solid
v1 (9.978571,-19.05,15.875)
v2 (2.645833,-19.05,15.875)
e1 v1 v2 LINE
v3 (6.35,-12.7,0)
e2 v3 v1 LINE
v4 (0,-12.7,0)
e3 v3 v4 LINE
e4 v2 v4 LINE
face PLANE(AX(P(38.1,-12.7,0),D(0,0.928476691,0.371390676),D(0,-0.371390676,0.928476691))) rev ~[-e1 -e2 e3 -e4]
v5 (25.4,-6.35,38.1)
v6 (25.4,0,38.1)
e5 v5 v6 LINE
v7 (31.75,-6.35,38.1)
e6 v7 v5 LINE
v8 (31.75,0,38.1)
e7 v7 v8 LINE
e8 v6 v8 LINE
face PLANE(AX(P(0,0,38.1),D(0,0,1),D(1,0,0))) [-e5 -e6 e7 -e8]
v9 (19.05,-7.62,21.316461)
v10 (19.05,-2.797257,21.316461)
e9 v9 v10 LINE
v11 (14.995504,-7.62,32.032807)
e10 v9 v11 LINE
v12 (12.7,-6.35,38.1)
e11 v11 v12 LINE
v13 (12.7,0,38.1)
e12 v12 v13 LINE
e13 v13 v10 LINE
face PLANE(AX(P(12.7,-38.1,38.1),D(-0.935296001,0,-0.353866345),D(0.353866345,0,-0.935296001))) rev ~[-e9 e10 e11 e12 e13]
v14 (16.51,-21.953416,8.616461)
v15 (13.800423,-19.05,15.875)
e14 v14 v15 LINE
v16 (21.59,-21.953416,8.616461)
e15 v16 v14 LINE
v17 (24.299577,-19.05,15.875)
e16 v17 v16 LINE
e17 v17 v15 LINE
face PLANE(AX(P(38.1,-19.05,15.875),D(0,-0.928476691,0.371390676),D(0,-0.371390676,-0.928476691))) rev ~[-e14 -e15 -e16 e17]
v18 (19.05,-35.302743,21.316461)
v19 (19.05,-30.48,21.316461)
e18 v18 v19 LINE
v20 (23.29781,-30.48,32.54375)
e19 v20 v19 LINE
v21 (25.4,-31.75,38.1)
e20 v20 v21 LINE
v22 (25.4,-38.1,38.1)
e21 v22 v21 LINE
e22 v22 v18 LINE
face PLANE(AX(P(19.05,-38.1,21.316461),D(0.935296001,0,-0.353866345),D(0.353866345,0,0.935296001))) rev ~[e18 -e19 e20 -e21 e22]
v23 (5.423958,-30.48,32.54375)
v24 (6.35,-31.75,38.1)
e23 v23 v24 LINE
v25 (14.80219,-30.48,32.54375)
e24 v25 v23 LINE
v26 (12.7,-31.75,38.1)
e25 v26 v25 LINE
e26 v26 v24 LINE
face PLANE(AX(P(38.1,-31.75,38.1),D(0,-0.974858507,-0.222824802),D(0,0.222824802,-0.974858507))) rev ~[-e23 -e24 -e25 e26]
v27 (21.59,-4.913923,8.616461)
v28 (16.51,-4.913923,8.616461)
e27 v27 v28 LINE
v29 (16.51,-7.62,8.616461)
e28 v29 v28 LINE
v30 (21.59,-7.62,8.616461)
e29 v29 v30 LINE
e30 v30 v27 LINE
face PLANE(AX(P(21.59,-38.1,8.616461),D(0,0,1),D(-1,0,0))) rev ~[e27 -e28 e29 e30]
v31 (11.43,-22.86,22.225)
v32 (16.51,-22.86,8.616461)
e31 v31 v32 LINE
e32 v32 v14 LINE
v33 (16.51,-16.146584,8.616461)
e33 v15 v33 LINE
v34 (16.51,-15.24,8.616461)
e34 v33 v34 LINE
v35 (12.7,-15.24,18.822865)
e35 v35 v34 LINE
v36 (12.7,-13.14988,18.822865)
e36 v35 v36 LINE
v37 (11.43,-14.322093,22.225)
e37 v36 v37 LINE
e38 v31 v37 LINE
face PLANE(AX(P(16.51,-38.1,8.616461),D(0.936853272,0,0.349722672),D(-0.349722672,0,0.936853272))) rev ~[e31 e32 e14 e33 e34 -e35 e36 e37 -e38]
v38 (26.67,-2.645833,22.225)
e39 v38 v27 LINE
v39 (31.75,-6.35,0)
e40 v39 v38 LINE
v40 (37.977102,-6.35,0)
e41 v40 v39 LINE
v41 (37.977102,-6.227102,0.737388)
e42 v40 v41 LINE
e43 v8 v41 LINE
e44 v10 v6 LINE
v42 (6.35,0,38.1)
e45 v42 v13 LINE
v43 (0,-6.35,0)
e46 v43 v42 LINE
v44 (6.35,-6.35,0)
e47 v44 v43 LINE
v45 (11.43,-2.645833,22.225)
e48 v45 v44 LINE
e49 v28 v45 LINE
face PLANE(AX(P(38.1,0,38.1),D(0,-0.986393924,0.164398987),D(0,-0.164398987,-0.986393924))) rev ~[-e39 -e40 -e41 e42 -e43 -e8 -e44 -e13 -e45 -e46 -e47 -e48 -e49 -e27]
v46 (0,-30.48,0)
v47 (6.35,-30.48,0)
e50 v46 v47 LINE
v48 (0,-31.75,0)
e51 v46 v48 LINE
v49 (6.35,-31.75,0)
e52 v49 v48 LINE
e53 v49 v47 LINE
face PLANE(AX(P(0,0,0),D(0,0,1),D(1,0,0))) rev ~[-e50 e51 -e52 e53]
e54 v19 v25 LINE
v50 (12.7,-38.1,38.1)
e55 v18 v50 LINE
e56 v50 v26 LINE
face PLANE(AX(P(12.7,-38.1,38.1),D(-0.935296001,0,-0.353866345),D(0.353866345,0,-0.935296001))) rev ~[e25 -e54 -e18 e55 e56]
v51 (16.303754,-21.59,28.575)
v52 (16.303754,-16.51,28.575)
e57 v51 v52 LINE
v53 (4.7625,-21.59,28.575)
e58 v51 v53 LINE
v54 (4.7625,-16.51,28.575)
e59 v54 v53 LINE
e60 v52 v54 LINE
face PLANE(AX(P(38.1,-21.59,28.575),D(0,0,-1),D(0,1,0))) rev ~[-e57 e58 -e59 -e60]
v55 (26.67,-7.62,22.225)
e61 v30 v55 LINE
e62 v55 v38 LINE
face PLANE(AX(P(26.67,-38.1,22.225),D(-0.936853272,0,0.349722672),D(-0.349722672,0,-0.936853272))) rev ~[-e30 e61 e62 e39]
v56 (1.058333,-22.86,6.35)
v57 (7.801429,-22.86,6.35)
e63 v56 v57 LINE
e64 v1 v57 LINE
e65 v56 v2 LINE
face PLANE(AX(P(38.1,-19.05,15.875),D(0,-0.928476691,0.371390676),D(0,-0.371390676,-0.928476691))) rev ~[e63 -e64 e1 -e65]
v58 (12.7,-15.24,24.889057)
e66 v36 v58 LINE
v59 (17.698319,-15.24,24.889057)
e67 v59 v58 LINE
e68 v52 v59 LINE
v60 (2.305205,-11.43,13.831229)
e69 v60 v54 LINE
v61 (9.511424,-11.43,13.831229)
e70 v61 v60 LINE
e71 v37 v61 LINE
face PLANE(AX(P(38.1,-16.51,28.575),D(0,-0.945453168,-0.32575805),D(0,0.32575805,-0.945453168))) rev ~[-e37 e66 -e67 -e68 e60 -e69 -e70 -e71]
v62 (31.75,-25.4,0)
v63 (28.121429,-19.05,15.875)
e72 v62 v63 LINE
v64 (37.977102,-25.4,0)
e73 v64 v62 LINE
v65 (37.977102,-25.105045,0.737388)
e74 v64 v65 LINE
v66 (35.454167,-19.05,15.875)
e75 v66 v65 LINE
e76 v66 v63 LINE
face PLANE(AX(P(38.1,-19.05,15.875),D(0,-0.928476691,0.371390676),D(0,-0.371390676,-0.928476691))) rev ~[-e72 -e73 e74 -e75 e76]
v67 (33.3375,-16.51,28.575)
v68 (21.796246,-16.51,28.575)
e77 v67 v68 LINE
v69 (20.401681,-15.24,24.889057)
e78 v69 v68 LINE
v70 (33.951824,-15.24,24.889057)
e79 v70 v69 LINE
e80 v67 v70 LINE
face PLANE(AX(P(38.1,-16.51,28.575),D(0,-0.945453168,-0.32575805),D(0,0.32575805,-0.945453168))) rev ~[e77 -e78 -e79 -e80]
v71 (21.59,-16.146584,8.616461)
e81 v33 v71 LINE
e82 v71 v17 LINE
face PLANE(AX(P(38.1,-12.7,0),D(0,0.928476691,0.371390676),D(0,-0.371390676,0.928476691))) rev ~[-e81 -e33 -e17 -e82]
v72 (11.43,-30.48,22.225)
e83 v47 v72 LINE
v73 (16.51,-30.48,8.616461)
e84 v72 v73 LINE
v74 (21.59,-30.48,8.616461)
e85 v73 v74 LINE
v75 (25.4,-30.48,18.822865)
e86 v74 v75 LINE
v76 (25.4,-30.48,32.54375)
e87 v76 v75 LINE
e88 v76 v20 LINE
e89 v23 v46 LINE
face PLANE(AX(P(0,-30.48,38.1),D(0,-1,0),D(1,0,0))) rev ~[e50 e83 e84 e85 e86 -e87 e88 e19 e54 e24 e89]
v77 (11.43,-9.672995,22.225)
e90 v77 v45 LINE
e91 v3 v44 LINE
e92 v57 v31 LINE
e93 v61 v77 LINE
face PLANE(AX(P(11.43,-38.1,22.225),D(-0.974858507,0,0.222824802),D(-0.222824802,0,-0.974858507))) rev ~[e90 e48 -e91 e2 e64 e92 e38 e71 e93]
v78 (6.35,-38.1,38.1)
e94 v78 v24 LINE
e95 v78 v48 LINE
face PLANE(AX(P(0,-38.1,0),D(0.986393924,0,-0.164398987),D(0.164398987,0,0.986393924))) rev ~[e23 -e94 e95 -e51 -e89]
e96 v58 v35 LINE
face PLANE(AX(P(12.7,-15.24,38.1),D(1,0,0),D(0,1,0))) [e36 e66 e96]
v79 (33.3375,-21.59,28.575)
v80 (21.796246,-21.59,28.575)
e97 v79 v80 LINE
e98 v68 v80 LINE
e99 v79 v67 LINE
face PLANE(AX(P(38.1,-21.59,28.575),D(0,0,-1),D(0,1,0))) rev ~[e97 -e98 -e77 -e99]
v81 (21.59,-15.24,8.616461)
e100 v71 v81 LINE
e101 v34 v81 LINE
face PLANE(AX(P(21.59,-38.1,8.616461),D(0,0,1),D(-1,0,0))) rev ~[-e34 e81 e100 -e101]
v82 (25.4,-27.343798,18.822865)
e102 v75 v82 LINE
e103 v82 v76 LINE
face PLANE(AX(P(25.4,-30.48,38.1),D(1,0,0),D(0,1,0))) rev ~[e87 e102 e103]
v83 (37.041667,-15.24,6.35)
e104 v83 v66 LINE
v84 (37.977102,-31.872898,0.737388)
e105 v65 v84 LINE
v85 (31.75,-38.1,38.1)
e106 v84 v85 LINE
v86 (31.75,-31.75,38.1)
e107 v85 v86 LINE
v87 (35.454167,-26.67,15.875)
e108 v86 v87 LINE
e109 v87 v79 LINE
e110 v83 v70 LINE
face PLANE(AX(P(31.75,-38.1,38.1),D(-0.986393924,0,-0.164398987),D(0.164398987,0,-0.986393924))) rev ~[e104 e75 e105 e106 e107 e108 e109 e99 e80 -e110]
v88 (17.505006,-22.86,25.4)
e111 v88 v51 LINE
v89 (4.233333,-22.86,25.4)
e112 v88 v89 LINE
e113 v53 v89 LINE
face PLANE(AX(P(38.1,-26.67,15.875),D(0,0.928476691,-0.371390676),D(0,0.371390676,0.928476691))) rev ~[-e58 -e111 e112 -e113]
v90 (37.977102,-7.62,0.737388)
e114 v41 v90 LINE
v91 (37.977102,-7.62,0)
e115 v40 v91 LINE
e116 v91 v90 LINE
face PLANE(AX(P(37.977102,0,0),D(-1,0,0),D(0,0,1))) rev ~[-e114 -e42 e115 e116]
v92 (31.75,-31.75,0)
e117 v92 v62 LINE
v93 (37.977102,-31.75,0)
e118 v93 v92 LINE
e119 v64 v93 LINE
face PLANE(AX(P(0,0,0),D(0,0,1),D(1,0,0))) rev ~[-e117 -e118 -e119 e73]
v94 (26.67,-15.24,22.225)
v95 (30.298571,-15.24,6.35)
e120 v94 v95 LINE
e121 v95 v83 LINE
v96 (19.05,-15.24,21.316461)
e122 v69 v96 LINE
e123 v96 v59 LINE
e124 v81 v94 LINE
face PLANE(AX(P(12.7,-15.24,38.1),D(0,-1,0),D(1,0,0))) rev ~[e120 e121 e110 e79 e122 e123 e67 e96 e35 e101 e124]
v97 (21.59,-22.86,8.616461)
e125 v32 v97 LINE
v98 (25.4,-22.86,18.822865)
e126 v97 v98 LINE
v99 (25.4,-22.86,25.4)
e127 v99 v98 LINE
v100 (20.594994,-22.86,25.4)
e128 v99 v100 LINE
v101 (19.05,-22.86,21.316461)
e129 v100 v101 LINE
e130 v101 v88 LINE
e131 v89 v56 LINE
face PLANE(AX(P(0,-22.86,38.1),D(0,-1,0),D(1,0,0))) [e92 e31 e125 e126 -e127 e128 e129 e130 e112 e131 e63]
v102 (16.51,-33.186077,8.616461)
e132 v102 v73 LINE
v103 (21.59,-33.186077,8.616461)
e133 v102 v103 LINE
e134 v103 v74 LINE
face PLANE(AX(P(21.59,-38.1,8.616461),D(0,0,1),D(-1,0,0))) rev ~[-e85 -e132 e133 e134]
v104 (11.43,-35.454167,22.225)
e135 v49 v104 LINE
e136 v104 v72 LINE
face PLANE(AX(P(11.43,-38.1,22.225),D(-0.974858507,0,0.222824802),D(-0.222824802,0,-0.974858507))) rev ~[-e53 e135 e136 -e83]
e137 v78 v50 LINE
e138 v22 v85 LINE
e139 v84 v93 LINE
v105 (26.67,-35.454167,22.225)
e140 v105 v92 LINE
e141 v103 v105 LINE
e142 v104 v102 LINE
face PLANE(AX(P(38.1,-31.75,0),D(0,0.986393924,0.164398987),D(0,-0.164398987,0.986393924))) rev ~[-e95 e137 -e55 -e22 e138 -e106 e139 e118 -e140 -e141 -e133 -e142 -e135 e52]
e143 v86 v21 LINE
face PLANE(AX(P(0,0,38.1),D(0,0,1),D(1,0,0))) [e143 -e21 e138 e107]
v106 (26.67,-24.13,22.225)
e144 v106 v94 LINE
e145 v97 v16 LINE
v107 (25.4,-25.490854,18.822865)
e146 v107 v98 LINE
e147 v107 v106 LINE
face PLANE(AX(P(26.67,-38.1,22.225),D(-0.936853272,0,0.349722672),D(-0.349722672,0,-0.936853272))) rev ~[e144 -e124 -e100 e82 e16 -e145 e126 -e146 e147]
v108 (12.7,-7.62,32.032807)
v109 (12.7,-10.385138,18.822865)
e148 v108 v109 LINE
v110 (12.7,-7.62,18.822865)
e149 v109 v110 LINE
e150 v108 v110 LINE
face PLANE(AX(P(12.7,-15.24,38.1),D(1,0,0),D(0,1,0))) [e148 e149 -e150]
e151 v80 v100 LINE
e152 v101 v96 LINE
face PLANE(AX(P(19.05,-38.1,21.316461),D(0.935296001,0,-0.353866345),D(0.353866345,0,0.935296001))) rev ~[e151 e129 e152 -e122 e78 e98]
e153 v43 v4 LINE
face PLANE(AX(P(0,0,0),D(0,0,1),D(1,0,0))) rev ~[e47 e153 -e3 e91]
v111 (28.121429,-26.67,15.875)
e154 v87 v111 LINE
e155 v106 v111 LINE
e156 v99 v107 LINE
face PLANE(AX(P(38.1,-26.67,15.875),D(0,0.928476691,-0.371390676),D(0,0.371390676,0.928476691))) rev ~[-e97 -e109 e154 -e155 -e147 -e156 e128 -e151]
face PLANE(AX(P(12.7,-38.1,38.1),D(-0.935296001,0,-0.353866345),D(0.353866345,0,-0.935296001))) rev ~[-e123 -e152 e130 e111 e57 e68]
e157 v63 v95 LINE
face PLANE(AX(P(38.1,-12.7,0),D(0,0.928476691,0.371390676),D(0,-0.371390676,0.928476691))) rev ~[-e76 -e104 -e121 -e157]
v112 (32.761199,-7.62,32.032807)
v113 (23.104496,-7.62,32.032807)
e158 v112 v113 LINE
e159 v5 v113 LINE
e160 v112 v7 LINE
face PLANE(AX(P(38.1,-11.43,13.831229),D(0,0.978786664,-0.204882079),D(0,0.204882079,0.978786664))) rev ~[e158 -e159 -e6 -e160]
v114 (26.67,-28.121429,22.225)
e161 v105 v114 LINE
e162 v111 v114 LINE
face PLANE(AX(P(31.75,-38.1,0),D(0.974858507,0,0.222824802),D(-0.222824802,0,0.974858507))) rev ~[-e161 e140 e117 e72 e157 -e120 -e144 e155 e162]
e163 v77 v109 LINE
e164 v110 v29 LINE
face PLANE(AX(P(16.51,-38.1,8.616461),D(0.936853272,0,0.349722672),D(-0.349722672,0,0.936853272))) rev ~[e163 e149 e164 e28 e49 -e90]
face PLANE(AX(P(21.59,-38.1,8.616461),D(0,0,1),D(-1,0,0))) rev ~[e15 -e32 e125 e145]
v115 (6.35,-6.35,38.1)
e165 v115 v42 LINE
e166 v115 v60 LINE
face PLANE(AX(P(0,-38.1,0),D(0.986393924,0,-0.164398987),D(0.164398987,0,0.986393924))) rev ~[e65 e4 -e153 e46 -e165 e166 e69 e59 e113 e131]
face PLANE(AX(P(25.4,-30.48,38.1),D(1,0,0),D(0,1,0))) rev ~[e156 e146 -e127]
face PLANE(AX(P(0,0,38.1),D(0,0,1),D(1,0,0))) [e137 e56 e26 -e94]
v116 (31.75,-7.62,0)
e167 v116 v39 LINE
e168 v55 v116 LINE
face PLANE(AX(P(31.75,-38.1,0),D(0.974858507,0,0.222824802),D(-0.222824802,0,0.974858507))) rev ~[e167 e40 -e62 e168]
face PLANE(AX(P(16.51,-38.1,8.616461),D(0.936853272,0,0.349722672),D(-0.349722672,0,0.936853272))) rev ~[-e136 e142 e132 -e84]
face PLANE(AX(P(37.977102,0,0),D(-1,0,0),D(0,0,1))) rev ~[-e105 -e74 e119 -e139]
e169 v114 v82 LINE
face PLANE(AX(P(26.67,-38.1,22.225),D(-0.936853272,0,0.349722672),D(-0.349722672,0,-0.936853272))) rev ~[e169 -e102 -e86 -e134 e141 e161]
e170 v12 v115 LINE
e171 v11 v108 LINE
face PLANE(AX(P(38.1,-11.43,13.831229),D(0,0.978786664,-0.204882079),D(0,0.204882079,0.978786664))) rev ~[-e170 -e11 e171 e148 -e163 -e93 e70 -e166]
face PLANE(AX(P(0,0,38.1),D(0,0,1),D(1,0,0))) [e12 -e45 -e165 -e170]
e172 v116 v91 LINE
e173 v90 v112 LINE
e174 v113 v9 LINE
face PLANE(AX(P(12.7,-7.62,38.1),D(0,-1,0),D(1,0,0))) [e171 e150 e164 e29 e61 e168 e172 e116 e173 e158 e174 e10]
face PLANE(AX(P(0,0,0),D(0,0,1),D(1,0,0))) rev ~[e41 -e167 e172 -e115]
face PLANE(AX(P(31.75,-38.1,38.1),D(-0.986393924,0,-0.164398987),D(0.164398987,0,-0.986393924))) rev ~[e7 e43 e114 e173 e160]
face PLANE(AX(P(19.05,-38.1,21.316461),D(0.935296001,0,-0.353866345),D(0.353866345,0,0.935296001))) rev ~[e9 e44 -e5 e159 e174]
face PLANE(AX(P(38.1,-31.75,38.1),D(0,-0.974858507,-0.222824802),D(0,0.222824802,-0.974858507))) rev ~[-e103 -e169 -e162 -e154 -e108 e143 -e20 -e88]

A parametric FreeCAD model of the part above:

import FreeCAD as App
import Part
import Sketcher

V = App.Vector
Q = App.Units.Quantity


def add_polygon(sketch, points):
    """Adds a closed chain of lines whose ends are joined by coincident constraints."""
    first, n = sketch.GeometryCount, len(points)
    for a, b in zip(points, points[1:] + points[:1]):
        sketch.addGeometry(Part.LineSegment(App.Vector(*a, 0), App.Vector(*b, 0)), False)
    for i in range(n):
        sketch.addConstraint(Sketcher.Constraint("Coincident", first + i, 2, first + (i + 1) % n, 1))

doc = App.newDocument("Part")
body = doc.addObject("PartDesign::Body", "Body")

# Sketch on XZ plane
sketch1 = body.newObject("Sketcher::SketchObject", "Sketch")
sketch1.AttachmentSupport = (doc.getObject("XZ_Plane"), [""])
sketch1.MapMode = "FlatFace"
add_polygon(sketch1, [(0, 38), (0, 0), (38, 0), (38, 38)])  # lines 0-3
sketch1.addConstraint(Sketcher.Constraint("Vertical", 0))
sketch1.addConstraint(Sketcher.Constraint("Horizontal", 1))
sketch1.addConstraint(Sketcher.Constraint("Vertical", 2))
sketch1.addConstraint(Sketcher.Constraint("Horizontal", 3))
sketch1.addConstraint(Sketcher.Constraint("Coincident", 0, 2, -1, 1))
sketch1.addConstraint(Sketcher.Constraint("DistanceY", 0, 2, 0, 1, Q("1.5 in")))
sketch1.addConstraint(Sketcher.Constraint("DistanceX", 1, 1, 1, 2, 37.977102))
pad1 = body.newObject("PartDesign::Pad", "Pad")
pad1.Profile = sketch1
pad1.Length = Q("1.5 in")

# Sketch on YZ plane
sketch2 = body.newObject("Sketcher::SketchObject", "Sketch001")
sketch2.AttachmentSupport = (doc.getObject("YZ_Plane"), [""])
sketch2.MapMode = "FlatFace"
sketch2.AttachmentOffset = App.Placement(V(0, 0, 1.5 * 25.4), App.Rotation())
add_polygon(sketch2, [(-32, 0), (-38, 38), (-38, 0)])  # lines 0-2
add_polygon(sketch2, [(-11, 14), (-6, 38), (-32, 38), (-27, 16), (-22, 29), (-17, 29)])  # lines 3-8
add_polygon(sketch2, [(-13, 0), (-19, 16), (-25, 0)])  # lines 9-11
add_polygon(sketch2, [(0, 0), (0, 38), (-6, 0)])  # lines 12-14
sketch2.addConstraint(Sketcher.Constraint("Vertical", 1))
sketch2.addConstraint(Sketcher.Constraint("Horizontal", 2))
sketch2.addConstraint(Sketcher.Constraint("Horizontal", 4))
sketch2.addConstraint(Sketcher.Constraint("Horizontal", 7))
sketch2.addConstraint(Sketcher.Constraint("Horizontal", 11))
sketch2.addConstraint(Sketcher.Constraint("Vertical", 12))
sketch2.addConstraint(Sketcher.Constraint("Horizontal", 14))
sketch2.addConstraint(Sketcher.Constraint("Coincident", 14, 2, -1, 1))
sketch2.addConstraint(Sketcher.Constraint("PointOnObject", 1, 2, -1))
sketch2.addConstraint(Sketcher.Constraint("PointOnObject", 10, 2, -1))
sketch2.addConstraint(Sketcher.Constraint("Parallel", 6, 10))
sketch2.addConstraint(Sketcher.Constraint("Horizontal", 0, 2, 3, 2))
sketch2.addConstraint(Sketcher.Constraint("Horizontal", 5, 2, 9, 2))
sketch2.addConstraint(Sketcher.Constraint("Horizontal", 4, 2, 12, 2))
sketch2.addConstraint(Sketcher.Constraint("Vertical", 2, 2, 4, 2))
sketch2.addConstraint(Sketcher.Constraint("Vertical", 3, 2, 13, 2))
sketch2.addConstraint(Sketcher.Constraint("Equal", 2, 14))
sketch2.addConstraint(Sketcher.Constraint("Equal", 9, 10))
sketch2.addConstraint(Sketcher.Constraint("DistanceX", 4, 2, 4, 1, Q("1 in")))
sketch2.addConstraint(Sketcher.Constraint("DistanceX", 7, 1, 7, 2, Q("0.2 in")))
sketch2.addConstraint(Sketcher.Constraint("DistanceX", 11, 1, 11, 2, Q("0.5 in")))
sketch2.addConstraint(Sketcher.Constraint("DistanceY", 1, 2, 1, 1, Q("1.5 in")))
sketch2.addConstraint(Sketcher.Constraint("DistanceX", 10, 2, -1, 1, Q("1 in")))
sketch2.addConstraint(Sketcher.Constraint("DistanceX", 2, 1, 2, 2, Q("0.25 in")))
sketch2.addConstraint(Sketcher.Constraint("DistanceX", 2, 2, 5, 2, Q("0.2 in")))
sketch2.addConstraint(Sketcher.Constraint("DistanceX", 5, 2, 6, 2, Q("0.2 in")))
sketch2.addConstraint(Sketcher.Constraint("DistanceY", 5, 2, 6, 2, Q("0.5 in")))
sketch2.addConstraint(Sketcher.Constraint("DistanceX", 5, 2, 8, 2, Q("0.6 in")))
sketch2.addConstraint(Sketcher.Constraint("Distance", 3, 24.79475))
pocket1 = body.newObject("PartDesign::Pocket", "Pocket")
pocket1.Profile = sketch2
pocket1.Length = Q("1.5 in")

# Sketch on XZ plane
sketch3 = body.newObject("Sketcher::SketchObject", "Sketch002")
sketch3.AttachmentSupport = (doc.getObject("XZ_Plane"), [""])
sketch3.MapMode = "FlatFace"
sketch3.AttachmentOffset = App.Placement(V(0, 0, 1.5 * 25.4), App.Rotation())
add_polygon(sketch3, [(11, 22), (6, 0), (32, 0), (27, 22), (22, 9), (17, 9)])  # lines 0-5
add_polygon(sketch3, [(25, 38), (13, 38), (19, 21)])  # lines 6-8
add_polygon(sketch3, [(0, 38), (0, 0), (6, 38)])  # lines 9-11
add_polygon(sketch3, [(32, 38), (38, 0), (38, 38)])  # lines 12-14
sketch3.addConstraint(Sketcher.Constraint("Horizontal", 1))
sketch3.addConstraint(Sketcher.Constraint("Horizontal", 4))
sketch3.addConstraint(Sketcher.Constraint("Horizontal", 6))
sketch3.addConstraint(Sketcher.Constraint("Vertical", 9))
sketch3.addConstraint(Sketcher.Constraint("Horizontal", 11))
sketch3.addConstraint(Sketcher.Constraint("Vertical", 13))
sketch3.addConstraint(Sketcher.Constraint("Horizontal", 14))
sketch3.addConstraint(Sketcher.Constraint("Coincident", 9, 2, -1, 1))
sketch3.addConstraint(Sketcher.Constraint("PointOnObject", 0, 2, -1))
sketch3.addConstraint(Sketcher.Constraint("PointOnObject", 12, 2, -1))
sketch3.addConstraint(Sketcher.Constraint("Horizontal", 2, 2, 5, 2))
sketch3.addConstraint(Sketcher.Constraint("Horizontal", 8, 2, 10, 2))
sketch3.addConstraint(Sketcher.Constraint("Horizontal", 11, 2, 13, 2))
sketch3.addConstraint(Sketcher.Constraint("Vertical", 0, 2, 10, 2))
sketch3.addConstraint(Sketcher.Constraint("Vertical", 1, 2, 14, 2))
sketch3.addConstraint(Sketcher.Constraint("Equal", 11, 14))
sketch3.addConstraint(Sketcher.Constraint("Equal", 0, 2))
sketch3.addConstraint(Sketcher.Constraint("Equal", 3, 5))
sketch3.addConstraint(Sketcher.Constraint("Equal", 7, 8))
sketch3.addConstraint(Sketcher.Constraint("DistanceX", 1, 1, 1, 2, Q("1 in")))
sketch3.addConstraint(Sketcher.Constraint("DistanceX", 4, 2, 4, 1, Q("0.2 in")))
sketch3.addConstraint(Sketcher.Constraint("DistanceX", 6, 2, 6, 1, Q("0.5 in")))
sketch3.addConstraint(Sketcher.Constraint("DistanceY", 9, 2, 9, 1, Q("1.5 in")))
sketch3.addConstraint(Sketcher.Constraint("DistanceX", -1, 1, 8, 2, Q("1 in")))
sketch3.addConstraint(Sketcher.Constraint("DistanceX", 6, 2, 13, 2, Q("1 in")))
sketch3.addConstraint(Sketcher.Constraint("DistanceX", 2, 2, 1, 2, Q("0.2 in")))
sketch3.addConstraint(Sketcher.Constraint("DistanceY", 3, 2, 7, 2, Q("0.5 in")))
sketch3.addConstraint(Sketcher.Constraint("DistanceY", -1, 1, 2, 2, Q("0.875 in")))
sketch3.addConstraint(Sketcher.Constraint("Distance", 7, 17.944628))
pocket2 = body.newObject("PartDesign::Pocket", "Pocket001")
pocket2.Profile = sketch3
pocket2.Length = Q("1.5 in")

# Sketch on XY plane
sketch4 = body.newObject("Sketcher::SketchObject", "Sketch003")
sketch4.AttachmentSupport = (doc.getObject("XY_Plane"), [""])
sketch4.MapMode = "FlatFace"
sketch4.AttachmentOffset = App.Placement(V(0, 0, 1.5 * 25.4), App.Rotation())
add_polygon(sketch4, [(13, -8), (13, -15), (38, -15), (38, -8)])  # lines 0-3
add_polygon(sketch4, [(0, -23), (0, -30), (25, -30), (25, -23)])  # lines 4-7
sketch4.addConstraint(Sketcher.Constraint("Vertical", 0))
sketch4.addConstraint(Sketcher.Constraint("Horizontal", 1))
sketch4.addConstraint(Sketcher.Constraint("Vertical", 2))
sketch4.addConstraint(Sketcher.Constraint("Horizontal", 3))
sketch4.addConstraint(Sketcher.Constraint("Vertical", 4))
sketch4.addConstraint(Sketcher.Constraint("Horizontal", 5))
sketch4.addConstraint(Sketcher.Constraint("Vertical", 6))
sketch4.addConstraint(Sketcher.Constraint("Horizontal", 7))
sketch4.addConstraint(Sketcher.Constraint("PointOnObject", 4, 2, -2))
sketch4.addConstraint(Sketcher.Constraint("Equal", 3, 5))
sketch4.addConstraint(Sketcher.Constraint("Equal", 2, 4))
sketch4.addConstraint(Sketcher.Constraint("DistanceX", 1, 1, 1, 2, Q("1 in")))
sketch4.addConstraint(Sketcher.Constraint("DistanceY", 0, 2, 0, 1, Q("0.3 in")))
sketch4.addConstraint(Sketcher.Constraint("DistanceX", -1, 1, 0, 2, Q("0.5 in")))
sketch4.addConstraint(Sketcher.Constraint("DistanceY", 0, 2, -1, 1, Q("0.6 in")))
sketch4.addConstraint(Sketcher.Constraint("DistanceY", 4, 2, -1, 1, Q("1.2 in")))
pocket3 = body.newObject("PartDesign::Pocket", "Pocket002")
pocket3.Profile = sketch4
pocket3.Length = Q("1.5 in")

doc.recompute()
